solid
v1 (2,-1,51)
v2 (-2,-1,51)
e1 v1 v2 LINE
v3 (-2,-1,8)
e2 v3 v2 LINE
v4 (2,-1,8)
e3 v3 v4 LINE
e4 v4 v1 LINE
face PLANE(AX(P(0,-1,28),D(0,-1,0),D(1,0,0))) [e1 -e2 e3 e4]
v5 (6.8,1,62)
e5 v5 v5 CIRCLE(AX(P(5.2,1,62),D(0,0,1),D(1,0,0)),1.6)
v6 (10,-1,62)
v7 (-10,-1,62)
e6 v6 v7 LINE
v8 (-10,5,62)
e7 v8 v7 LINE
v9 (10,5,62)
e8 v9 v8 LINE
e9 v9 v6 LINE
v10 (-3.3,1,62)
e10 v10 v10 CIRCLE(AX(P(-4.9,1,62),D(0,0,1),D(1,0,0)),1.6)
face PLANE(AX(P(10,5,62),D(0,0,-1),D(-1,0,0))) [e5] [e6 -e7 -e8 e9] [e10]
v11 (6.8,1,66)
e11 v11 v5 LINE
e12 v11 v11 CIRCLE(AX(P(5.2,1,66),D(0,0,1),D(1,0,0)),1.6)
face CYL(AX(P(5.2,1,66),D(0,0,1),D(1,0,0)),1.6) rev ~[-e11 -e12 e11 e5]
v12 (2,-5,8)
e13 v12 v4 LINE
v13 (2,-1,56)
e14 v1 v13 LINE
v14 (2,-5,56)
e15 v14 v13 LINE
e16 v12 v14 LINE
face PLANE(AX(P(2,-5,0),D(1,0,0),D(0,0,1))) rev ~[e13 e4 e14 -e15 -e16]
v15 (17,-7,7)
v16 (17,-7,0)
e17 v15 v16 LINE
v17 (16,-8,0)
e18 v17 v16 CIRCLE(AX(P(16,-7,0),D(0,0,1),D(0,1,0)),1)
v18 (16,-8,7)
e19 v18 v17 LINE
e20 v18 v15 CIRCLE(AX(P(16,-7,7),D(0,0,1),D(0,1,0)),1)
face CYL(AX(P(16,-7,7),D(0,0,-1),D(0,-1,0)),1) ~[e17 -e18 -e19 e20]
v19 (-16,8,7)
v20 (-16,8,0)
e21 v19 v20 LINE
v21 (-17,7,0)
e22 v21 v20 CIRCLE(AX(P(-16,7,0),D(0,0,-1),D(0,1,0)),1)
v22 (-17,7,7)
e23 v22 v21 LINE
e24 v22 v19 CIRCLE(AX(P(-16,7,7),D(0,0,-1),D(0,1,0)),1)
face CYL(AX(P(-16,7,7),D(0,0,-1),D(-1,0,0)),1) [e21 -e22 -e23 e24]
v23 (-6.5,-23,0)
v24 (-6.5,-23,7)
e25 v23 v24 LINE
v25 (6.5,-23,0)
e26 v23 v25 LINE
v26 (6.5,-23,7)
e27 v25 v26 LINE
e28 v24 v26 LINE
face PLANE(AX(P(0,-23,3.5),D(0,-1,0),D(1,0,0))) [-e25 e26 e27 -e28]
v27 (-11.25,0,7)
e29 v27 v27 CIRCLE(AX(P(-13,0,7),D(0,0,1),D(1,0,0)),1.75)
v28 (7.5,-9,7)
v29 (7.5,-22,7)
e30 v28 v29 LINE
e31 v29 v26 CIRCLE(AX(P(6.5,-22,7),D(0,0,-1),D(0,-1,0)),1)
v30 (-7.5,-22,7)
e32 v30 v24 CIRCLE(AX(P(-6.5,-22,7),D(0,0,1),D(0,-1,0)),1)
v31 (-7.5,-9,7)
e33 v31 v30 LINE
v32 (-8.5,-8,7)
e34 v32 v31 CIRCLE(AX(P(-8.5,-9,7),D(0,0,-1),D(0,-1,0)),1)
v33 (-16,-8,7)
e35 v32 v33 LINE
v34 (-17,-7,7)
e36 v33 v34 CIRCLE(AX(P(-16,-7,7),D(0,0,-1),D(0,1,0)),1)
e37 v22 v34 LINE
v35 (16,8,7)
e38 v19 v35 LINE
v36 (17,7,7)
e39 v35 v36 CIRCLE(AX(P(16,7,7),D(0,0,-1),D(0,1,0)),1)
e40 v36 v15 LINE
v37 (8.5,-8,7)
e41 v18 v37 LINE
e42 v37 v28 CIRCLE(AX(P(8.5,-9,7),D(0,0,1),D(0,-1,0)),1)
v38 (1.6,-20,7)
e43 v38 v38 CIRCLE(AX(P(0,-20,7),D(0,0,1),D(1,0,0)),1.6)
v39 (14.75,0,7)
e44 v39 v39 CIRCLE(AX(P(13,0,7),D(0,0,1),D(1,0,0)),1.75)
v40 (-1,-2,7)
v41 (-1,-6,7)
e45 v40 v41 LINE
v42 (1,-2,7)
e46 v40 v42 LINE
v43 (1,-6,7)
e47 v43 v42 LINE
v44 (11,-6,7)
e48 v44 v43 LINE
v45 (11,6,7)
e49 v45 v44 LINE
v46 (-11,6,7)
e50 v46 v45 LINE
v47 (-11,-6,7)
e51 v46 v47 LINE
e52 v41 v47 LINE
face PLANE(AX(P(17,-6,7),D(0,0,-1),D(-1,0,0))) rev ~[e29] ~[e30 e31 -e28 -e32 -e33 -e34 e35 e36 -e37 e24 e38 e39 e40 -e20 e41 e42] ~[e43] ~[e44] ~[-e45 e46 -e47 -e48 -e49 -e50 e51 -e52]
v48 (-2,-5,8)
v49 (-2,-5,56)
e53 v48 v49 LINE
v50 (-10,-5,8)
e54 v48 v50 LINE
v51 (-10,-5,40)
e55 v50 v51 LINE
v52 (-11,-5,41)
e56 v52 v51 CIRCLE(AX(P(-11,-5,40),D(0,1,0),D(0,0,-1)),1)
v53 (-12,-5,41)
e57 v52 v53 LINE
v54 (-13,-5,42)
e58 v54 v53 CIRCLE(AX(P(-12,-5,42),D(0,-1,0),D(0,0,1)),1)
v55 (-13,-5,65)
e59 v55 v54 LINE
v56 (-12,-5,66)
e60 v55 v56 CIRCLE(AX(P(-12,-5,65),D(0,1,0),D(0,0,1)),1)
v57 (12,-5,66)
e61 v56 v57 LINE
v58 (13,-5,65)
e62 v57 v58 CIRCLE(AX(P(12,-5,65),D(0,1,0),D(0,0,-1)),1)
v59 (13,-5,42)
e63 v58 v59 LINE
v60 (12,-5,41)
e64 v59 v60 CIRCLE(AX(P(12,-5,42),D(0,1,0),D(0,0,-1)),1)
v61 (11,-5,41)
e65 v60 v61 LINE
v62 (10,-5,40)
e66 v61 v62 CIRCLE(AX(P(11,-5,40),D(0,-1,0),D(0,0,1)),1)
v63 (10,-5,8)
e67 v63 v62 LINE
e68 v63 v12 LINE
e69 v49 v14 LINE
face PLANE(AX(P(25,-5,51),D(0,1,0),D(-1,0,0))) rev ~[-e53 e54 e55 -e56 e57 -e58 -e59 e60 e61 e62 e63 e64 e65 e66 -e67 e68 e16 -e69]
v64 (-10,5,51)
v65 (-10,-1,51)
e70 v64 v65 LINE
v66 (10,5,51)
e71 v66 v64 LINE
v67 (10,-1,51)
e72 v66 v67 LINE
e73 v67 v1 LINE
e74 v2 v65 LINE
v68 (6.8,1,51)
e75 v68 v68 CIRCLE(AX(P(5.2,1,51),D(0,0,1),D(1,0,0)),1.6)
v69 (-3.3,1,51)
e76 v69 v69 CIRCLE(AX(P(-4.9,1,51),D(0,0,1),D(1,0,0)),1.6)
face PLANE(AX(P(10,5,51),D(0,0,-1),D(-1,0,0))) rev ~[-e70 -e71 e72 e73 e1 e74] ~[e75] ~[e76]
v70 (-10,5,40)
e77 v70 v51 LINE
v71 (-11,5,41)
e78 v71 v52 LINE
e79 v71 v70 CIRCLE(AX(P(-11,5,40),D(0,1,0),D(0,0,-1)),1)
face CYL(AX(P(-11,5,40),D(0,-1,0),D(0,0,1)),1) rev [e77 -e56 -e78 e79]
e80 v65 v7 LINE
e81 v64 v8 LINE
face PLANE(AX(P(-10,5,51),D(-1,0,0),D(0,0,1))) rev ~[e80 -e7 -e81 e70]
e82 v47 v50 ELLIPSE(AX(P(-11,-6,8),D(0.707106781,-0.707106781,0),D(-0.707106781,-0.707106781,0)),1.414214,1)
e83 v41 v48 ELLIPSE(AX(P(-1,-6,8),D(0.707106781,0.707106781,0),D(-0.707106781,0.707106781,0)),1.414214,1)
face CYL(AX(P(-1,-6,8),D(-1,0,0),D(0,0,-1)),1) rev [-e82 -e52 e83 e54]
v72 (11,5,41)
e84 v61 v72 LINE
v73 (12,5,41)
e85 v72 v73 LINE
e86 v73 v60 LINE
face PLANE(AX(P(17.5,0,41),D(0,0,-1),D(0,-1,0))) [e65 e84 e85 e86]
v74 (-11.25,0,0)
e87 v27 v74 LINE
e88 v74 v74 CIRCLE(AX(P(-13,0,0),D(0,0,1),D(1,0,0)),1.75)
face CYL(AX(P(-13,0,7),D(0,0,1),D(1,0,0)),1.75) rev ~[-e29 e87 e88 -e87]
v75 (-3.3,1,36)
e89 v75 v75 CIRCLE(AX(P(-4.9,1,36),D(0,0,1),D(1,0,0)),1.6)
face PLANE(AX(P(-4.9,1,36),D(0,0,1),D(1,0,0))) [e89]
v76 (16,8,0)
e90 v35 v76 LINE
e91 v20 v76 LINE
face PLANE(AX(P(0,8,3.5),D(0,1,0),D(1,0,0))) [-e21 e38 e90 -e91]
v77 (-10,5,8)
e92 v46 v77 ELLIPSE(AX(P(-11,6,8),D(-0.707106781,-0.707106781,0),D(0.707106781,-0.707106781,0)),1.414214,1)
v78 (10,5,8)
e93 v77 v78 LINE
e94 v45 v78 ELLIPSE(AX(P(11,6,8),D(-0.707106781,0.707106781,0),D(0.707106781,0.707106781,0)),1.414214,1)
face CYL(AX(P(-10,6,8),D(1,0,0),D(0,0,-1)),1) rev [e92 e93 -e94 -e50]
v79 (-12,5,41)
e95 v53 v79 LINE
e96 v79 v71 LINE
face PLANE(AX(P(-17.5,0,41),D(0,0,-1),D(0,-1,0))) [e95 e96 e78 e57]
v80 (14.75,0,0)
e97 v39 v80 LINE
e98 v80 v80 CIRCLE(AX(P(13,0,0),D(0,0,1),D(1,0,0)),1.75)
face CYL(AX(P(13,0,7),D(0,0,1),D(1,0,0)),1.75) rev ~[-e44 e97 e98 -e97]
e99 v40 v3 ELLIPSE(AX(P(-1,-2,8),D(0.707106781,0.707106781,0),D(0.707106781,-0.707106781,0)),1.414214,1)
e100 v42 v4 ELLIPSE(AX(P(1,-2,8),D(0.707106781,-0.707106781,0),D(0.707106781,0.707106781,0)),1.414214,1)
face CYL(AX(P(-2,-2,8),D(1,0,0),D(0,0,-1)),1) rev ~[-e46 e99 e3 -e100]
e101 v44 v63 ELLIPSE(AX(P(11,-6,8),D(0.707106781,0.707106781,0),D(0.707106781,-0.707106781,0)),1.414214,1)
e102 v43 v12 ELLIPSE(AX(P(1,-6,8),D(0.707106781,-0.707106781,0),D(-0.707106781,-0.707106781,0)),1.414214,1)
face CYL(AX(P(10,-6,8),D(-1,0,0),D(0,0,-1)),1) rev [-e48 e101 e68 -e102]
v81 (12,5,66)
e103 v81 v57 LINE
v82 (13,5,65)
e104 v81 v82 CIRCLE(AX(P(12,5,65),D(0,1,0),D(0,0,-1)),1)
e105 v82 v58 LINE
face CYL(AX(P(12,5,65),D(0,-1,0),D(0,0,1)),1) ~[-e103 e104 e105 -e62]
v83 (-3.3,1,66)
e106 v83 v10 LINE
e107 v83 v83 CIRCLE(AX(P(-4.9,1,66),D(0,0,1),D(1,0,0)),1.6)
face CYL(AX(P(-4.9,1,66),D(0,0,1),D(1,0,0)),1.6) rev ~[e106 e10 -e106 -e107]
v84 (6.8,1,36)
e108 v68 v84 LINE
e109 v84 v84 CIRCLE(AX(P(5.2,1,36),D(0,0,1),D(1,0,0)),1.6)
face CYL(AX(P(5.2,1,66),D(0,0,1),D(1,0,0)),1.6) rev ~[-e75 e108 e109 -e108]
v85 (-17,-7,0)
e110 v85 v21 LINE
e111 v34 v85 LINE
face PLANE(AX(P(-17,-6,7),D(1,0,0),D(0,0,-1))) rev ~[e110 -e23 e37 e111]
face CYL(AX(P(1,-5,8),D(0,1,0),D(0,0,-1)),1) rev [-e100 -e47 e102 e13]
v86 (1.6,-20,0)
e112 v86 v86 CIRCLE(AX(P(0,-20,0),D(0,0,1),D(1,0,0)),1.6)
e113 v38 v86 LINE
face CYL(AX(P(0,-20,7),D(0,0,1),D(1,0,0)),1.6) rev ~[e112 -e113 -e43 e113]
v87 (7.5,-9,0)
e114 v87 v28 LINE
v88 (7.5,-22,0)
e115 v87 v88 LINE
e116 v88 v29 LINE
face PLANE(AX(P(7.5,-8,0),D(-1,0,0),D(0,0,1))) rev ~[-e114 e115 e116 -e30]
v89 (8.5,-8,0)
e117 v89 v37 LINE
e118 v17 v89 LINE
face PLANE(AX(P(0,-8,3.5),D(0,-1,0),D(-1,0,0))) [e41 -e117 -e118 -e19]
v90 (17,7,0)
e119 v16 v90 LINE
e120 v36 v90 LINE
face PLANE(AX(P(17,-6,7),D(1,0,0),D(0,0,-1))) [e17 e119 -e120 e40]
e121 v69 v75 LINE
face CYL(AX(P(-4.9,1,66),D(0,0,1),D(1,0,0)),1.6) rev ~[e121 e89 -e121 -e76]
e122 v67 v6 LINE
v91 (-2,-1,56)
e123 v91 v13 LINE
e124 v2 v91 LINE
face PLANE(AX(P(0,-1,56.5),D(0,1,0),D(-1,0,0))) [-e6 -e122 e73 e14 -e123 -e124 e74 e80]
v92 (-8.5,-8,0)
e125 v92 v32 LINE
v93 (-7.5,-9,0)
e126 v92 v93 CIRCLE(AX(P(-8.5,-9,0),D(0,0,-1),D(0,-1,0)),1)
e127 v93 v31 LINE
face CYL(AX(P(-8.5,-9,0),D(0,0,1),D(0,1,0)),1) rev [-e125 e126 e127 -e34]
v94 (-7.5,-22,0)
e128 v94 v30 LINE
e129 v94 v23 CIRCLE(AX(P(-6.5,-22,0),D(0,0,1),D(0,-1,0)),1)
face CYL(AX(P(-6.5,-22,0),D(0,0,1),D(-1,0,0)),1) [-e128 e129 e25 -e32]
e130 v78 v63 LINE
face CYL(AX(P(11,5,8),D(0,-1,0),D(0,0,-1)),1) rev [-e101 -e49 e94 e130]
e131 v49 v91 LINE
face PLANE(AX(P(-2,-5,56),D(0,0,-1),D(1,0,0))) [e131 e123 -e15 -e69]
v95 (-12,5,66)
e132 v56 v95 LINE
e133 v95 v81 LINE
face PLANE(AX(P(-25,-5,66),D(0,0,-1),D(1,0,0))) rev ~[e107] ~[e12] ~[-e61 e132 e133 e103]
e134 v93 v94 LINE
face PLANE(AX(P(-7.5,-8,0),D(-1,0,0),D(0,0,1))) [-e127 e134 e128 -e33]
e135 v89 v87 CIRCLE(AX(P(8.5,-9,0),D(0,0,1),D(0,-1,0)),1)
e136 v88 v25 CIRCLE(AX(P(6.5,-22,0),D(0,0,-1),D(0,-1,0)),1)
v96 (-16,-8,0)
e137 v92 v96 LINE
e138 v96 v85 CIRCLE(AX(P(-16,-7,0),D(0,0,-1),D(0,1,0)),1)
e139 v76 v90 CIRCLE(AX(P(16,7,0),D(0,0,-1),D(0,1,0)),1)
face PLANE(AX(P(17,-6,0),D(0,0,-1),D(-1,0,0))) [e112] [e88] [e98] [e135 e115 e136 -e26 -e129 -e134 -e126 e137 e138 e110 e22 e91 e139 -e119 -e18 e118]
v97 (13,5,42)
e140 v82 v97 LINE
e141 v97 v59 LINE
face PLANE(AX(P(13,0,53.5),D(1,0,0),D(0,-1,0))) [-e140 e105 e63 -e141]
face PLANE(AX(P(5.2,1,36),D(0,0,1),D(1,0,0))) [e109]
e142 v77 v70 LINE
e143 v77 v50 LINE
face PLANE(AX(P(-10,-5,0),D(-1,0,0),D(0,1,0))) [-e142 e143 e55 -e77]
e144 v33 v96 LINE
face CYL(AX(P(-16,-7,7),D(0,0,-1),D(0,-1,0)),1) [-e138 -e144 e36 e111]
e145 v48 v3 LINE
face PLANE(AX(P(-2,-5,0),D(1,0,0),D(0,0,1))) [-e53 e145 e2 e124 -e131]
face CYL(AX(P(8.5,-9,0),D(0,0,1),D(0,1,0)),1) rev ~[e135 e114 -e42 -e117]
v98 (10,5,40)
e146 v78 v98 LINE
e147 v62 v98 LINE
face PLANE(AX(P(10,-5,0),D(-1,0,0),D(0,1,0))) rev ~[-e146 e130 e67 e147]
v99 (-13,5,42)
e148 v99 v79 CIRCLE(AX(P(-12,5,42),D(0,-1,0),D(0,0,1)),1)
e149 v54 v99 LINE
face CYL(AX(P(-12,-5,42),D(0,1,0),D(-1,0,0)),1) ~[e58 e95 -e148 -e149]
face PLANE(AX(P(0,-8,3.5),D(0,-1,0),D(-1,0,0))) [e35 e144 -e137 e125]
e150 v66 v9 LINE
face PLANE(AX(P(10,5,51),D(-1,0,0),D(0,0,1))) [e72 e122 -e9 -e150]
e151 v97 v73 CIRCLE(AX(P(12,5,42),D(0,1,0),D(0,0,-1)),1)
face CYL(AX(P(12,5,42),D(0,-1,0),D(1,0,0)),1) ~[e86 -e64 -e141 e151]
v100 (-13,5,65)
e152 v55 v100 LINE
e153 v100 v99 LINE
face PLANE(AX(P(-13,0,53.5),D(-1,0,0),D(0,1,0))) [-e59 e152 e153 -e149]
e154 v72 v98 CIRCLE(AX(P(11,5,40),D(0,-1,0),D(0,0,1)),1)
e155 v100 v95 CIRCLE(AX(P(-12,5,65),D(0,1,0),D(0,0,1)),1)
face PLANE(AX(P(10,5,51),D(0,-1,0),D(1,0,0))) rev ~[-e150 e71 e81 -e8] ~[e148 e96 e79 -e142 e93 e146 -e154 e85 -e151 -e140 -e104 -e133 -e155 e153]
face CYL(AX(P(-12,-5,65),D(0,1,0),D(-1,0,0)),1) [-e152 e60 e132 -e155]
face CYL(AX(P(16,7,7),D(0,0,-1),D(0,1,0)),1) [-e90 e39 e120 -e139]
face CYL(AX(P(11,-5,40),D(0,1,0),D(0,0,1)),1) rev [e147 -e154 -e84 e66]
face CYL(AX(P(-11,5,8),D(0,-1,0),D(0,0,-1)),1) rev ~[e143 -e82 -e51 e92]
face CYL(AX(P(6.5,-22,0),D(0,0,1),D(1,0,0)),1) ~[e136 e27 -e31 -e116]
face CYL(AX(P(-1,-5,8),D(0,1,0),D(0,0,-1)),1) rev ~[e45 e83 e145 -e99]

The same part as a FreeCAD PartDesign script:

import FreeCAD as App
import Part
import Sketcher

V = App.Vector
Q = App.Units.Quantity


def edges_at(feature, points):
    """Names of the edges that pass closest to the given points."""
    edges = feature.Shape.Edges
    near = lambda p: min(range(len(edges)), key=lambda i: edges[i].distToShape(Part.Vertex(*p))[0])
    return sorted({f"Edge{near(p) + 1}" for p in points})

doc = App.newDocument("Part")
body = doc.addObject("PartDesign::Body", "Body")

# Sketch on XY plane
sketch1 = doc.addObject("Sketcher::SketchObject", "Sketch")
body.addObject(sketch1)
sketch1.AttachmentSupport = (doc.XY_Plane, [""])
sketch1.MapMode = "FlatFace"
sketch1.addGeometry(Part.LineSegment(V(-10, 5, 0), V(-10, -5, 0)), False)
sketch1.addGeometry(Part.LineSegment(V(-10, -5, 0), V(10, -5, 0)), False)
sketch1.addGeometry(Part.LineSegment(V(10, -5, 0), V(10, 5, 0)), False)
sketch1.addGeometry(Part.LineSegment(V(10, 5, 0), V(-10, 5, 0)), False)
sketch1.addConstraint(Sketcher.Constraint("Coincident", 0, 2, 1, 1))
sketch1.addConstraint(Sketcher.Constraint("Coincident", 1, 2, 2, 1))
sketch1.addConstraint(Sketcher.Constraint("Coincident", 2, 2, 3, 1))
sketch1.addConstraint(Sketcher.Constraint("Coincident", 3, 2, 0, 1))
sketch1.addConstraint(Sketcher.Constraint("Vertical", 0))
sketch1.addConstraint(Sketcher.Constraint("Horizontal", 1))
sketch1.addConstraint(Sketcher.Constraint("Vertical", 2))
sketch1.addConstraint(Sketcher.Constraint("Horizontal", 3))
sketch1.addConstraint(Sketcher.Constraint("Symmetric", 0, 2, 2, 2, -1, 1))
sketch1.addConstraint(Sketcher.Constraint("DistanceX", 1, 1, 1, 2, Q("20 mm")))
sketch1.addConstraint(Sketcher.Constraint("DistanceY", 0, 2, 0, 1, Q("10 mm")))
pad1 = doc.addObject("PartDesign::Pad", "Pad")
body.addObject(pad1)
pad1.Profile = sketch1
pad1.Length = 60

# Sketch on XZ plane
sketch2 = doc.addObject("Sketcher::SketchObject", "Sketch001")
body.addObject(sketch2)
sketch2.AttachmentSupport = (doc.XZ_Plane, [""])
sketch2.MapMode = "FlatFace"
sketch2.AttachmentOffset = App.Placement(V(0, 0, 5), App.Rotation())
sketch2.addGeometry(Part.LineSegment(V(-25, 66, 0), V(-25, 56, 0)), False)
sketch2.addGeometry(Part.LineSegment(V(-25, 56, 0), V(25, 56, 0)), False)
sketch2.addGeometry(Part.LineSegment(V(25, 56, 0), V(25, 66, 0)), False)
sketch2.addGeometry(Part.LineSegment(V(25, 66, 0), V(-25, 66, 0)), False)
sketch2.addConstraint(Sketcher.Constraint("Coincident", 0, 2, 1, 1))
sketch2.addConstraint(Sketcher.Constraint("Coincident", 1, 2, 2, 1))
sketch2.addConstraint(Sketcher.Constraint("Coincident", 2, 2, 3, 1))
sketch2.addConstraint(Sketcher.Constraint("Coincident", 3, 2, 0, 1))
sketch2.addConstraint(Sketcher.Constraint("Vertical", 0))
sketch2.addConstraint(Sketcher.Constraint("Horizontal", 1))
sketch2.addConstraint(Sketcher.Constraint("Vertical", 2))
sketch2.addConstraint(Sketcher.Constraint("Horizontal", 3))
sketch2.addConstraint(Sketcher.Constraint("DistanceX", 1, 1, 1, 2, Q("50 mm")))
sketch2.addConstraint(Sketcher.Constraint("DistanceY", 0, 2, 0, 1, Q("10 mm")))
sketch2.addConstraint(Sketcher.Constraint("DistanceX", 0, 2, -1, 1, Q("25 mm")))
sketch2.addConstraint(Sketcher.Constraint("DistanceY", -1, 1, 0, 2, Q("56 mm")))
pad2 = doc.addObject("PartDesign::Pad", "Pad001")
body.addObject(pad2)
pad2.Profile = sketch2
pad2.Length = 10
pad2.Reversed = True

# Sketch on XY plane
sketch3 = doc.addObject("Sketcher::SketchObject", "Sketch002")
body.addObject(sketch3)
sketch3.AttachmentSupport = (doc.XY_Plane, [""])
sketch3.MapMode = "FlatFace"
sketch3.AttachmentOffset = App.Placement(V(0, 0, 56), App.Rotation())
sketch3.addGeometry(Part.LineSegment(V(10, 5, 0), V(25, 5, 0)), False)
sketch3.addGeometry(Part.LineSegment(V(25, 5, 0), V(25, -5, 0)), False)
sketch3.addGeometry(Part.LineSegment(V(25, -5, 0), V(10, -5, 0)), False)
sketch3.addGeometry(Part.LineSegment(V(10, -5, 0), V(10, 5, 0)), False)
sketch3.addConstraint(Sketcher.Constraint("Coincident", 0, 2, 1, 1))
sketch3.addConstraint(Sketcher.Constraint("Coincident", 1, 2, 2, 1))
sketch3.addConstraint(Sketcher.Constraint("Coincident", 2, 2, 3, 1))
sketch3.addConstraint(Sketcher.Constraint("Coincident", 3, 2, 0, 1))
sketch3.addConstraint(Sketcher.Constraint("Horizontal", 0))
sketch3.addConstraint(Sketcher.Constraint("Vertical", 1))
sketch3.addConstraint(Sketcher.Constraint("Horizontal", 2))
sketch3.addConstraint(Sketcher.Constraint("Vertical", 3))
sketch3.addConstraint(Sketcher.Constraint("DistanceX", 0, 1, 0, 2, Q("15 mm")))
sketch3.addConstraint(Sketcher.Constraint("DistanceY", 1, 2, 1, 1, Q("10 mm")))
sketch3.addConstraint(Sketcher.Constraint("DistanceX", -1, 1, 0, 2, Q("25 mm")))
sketch3.addConstraint(Sketcher.Constraint("DistanceY", -1, 1, 0, 2, Q("5 mm")))
pad3 = doc.addObject("PartDesign::Pad", "Pad002")
body.addObject(pad3)
pad3.Profile = sketch3
pad3.Length = 5
pad3.Reversed = True

# Sketch on XY plane
sketch4 = doc.addObject("Sketcher::SketchObject", "Sketch003")
body.addObject(sketch4)
sketch4.AttachmentSupport = (doc.XY_Plane, [""])
sketch4.MapMode = "FlatFace"
sketch4.AttachmentOffset = App.Placement(V(0, 0, 56), App.Rotation())
sketch4.addGeometry(Part.LineSegment(V(-25, 5, 0), V(-10, 5, 0)), False)
sketch4.addGeometry(Part.LineSegment(V(-10, 5, 0), V(-10, -5, 0)), False)
sketch4.addGeometry(Part.LineSegment(V(-10, -5, 0), V(-25, -5, 0)), False)
sketch4.addGeometry(Part.LineSegment(V(-25, -5, 0), V(-25, 5, 0)), False)
sketch4.addConstraint(Sketcher.Constraint("Coincident", 0, 2, 1, 1))
sketch4.addConstraint(Sketcher.Constraint("Coincident", 1, 2, 2, 1))
sketch4.addConstraint(Sketcher.Constraint("Coincident", 2, 2, 3, 1))
sketch4.addConstraint(Sketcher.Constraint("Coincident", 3, 2, 0, 1))
sketch4.addConstraint(Sketcher.Constraint("Horizontal", 0))
sketch4.addConstraint(Sketcher.Constraint("Vertical", 1))
sketch4.addConstraint(Sketcher.Constraint("Horizontal", 2))
sketch4.addConstraint(Sketcher.Constraint("Vertical", 3))
sketch4.addConstraint(Sketcher.Constraint("DistanceX", 0, 1, 0, 2, Q("15 mm")))
sketch4.addConstraint(Sketcher.Constraint("DistanceY", 1, 2, 1, 1, Q("10 mm")))
sketch4.addConstraint(Sketcher.Constraint("DistanceX", 0, 2, -1, 1, Q("10 mm")))
sketch4.addConstraint(Sketcher.Constraint("DistanceY", -1, 1, 0, 2, Q("5 mm")))
pad4 = doc.addObject("PartDesign::Pad", "Pad003")
body.addObject(pad4)
pad4.Profile = sketch4
pad4.Length = 5
pad4.Reversed = True

# Sketch on XZ plane
sketch5 = doc.addObject("Sketcher::SketchObject", "Sketch004")
body.addObject(sketch5)
sketch5.AttachmentSupport = (doc.XZ_Plane, [""])
sketch5.MapMode = "FlatFace"
sketch5.AttachmentOffset = App.Placement(V(0, 0, -5), App.Rotation())
sketch5.addGeometry(Part.LineSegment(V(10, 62, 0), V(10, 51, 0)), False)
sketch5.addGeometry(Part.LineSegment(V(10, 51, 0), V(-10, 51, 0)), False)
sketch5.addGeometry(Part.LineSegment(V(-10, 51, 0), V(-10, 62, 0)), False)
sketch5.addGeometry(Part.LineSegment(V(-10, 62, 0), V(10, 62, 0)), False)
sketch5.addConstraint(Sketcher.Constraint("Coincident", 0, 2, 1, 1))
sketch5.addConstraint(Sketcher.Constraint("Coincident", 1, 2, 2, 1))
sketch5.addConstraint(Sketcher.Constraint("Coincident", 2, 2, 3, 1))
sketch5.addConstraint(Sketcher.Constraint("Coincident", 3, 2, 0, 1))
sketch5.addConstraint(Sketcher.Constraint("Vertical", 0))
sketch5.addConstraint(Sketcher.Constraint("Horizontal", 1))
sketch5.addConstraint(Sketcher.Constraint("Vertical", 2))
sketch5.addConstraint(Sketcher.Constraint("Horizontal", 3))
sketch5.addConstraint(Sketcher.Constraint("DistanceX", 1, 2, 1, 1, Q("20 mm")))
sketch5.addConstraint(Sketcher.Constraint("DistanceY", 0, 2, 0, 1, Q("11 mm")))
sketch5.addConstraint(Sketcher.Constraint("DistanceX", -1, 1, 0, 2, Q("10 mm")))
sketch5.addConstraint(Sketcher.Constraint("DistanceY", -1, 1, 0, 2, Q("51 mm")))
pocket1 = doc.addObject("PartDesign::Pocket", "Pocket")
body.addObject(pocket1)
pocket1.Profile = sketch5
pocket1.Length = 6
pocket1.Reversed = True

# Sketch on XY plane
sketch6 = doc.addObject("Sketcher::SketchObject", "Sketch005")
body.addObject(sketch6)
sketch6.AttachmentSupport = (doc.XY_Plane, [""])
sketch6.MapMode = "FlatFace"
sketch6.AttachmentOffset = App.Placement(V(0, 0, 51), App.Rotation())
sketch6.addGeometry(Part.LineSegment(V(-10, -5, 0), V(-25, -5, 0)), False)
sketch6.addGeometry(Part.LineSegment(V(-25, -5, 0), V(-25, 5, 0)), False)
sketch6.addGeometry(Part.LineSegment(V(-25, 5, 0), V(-10, 5, 0)), False)
sketch6.addGeometry(Part.LineSegment(V(-10, 5, 0), V(-10, -5, 0)), False)
sketch6.addConstraint(Sketcher.Constraint("Coincident", 0, 2, 1, 1))
sketch6.addConstraint(Sketcher.Constraint("Coincident", 1, 2, 2, 1))
sketch6.addConstraint(Sketcher.Constraint("Coincident", 2, 2, 3, 1))
sketch6.addConstraint(Sketcher.Constraint("Coincident", 3, 2, 0, 1))
sketch6.addConstraint(Sketcher.Constraint("Horizontal", 0))
sketch6.addConstraint(Sketcher.Constraint("Vertical", 1))
sketch6.addConstraint(Sketcher.Constraint("Horizontal", 2))
sketch6.addConstraint(Sketcher.Constraint("Vertical", 3))
sketch6.addConstraint(Sketcher.Constraint("DistanceX", 0, 2, 0, 1, Q("15 mm")))
sketch6.addConstraint(Sketcher.Constraint("DistanceY", 1, 1, 1, 2, Q("10 mm")))
sketch6.addConstraint(Sketcher.Constraint("DistanceX", 0, 2, -1, 1, Q("25 mm")))
sketch6.addConstraint(Sketcher.Constraint("DistanceY", 0, 2, -1, 1, Q("5 mm")))
pad5 = doc.addObject("PartDesign::Pad", "Pad004")
body.addObject(pad5)
pad5.Profile = sketch6
pad5.Length = 10
pad5.Reversed = True

# Sketch on XY plane
sketch7 = doc.addObject("Sketcher::SketchObject", "Sketch006")
body.addObject(sketch7)
sketch7.AttachmentSupport = (doc.XY_Plane, [""])
sketch7.MapMode = "FlatFace"
sketch7.AttachmentOffset = App.Placement(V(0, 0, 51), App.Rotation())
sketch7.addGeometry(Part.LineSegment(V(25, -5, 0), V(10, -5, 0)), False)
sketch7.addGeometry(Part.LineSegment(V(10, -5, 0), V(10, 5, 0)), False)
sketch7.addGeometry(Part.LineSegment(V(10, 5, 0), V(25, 5, 0)), False)
sketch7.addGeometry(Part.LineSegment(V(25, 5, 0), V(25, -5, 0)), False)
sketch7.addConstraint(Sketcher.Constraint("Coincident", 0, 2, 1, 1))
sketch7.addConstraint(Sketcher.Constraint("Coincident", 1, 2, 2, 1))
sketch7.addConstraint(Sketcher.Constraint("Coincident", 2, 2, 3, 1))
sketch7.addConstraint(Sketcher.Constraint("Coincident", 3, 2, 0, 1))
sketch7.addConstraint(Sketcher.Constraint("Horizontal", 0))
sketch7.addConstraint(Sketcher.Constraint("Vertical", 1))
sketch7.addConstraint(Sketcher.Constraint("Horizontal", 2))
sketch7.addConstraint(Sketcher.Constraint("Vertical", 3))
sketch7.addConstraint(Sketcher.Constraint("DistanceX", 0, 2, 0, 1, Q("15 mm")))
sketch7.addConstraint(Sketcher.Constraint("DistanceY", 1, 1, 1, 2, Q("10 mm")))
sketch7.addConstraint(Sketcher.Constraint("DistanceX", -1, 1, 0, 2, Q("10 mm")))
sketch7.addConstraint(Sketcher.Constraint("DistanceY", 0, 2, -1, 1, Q("5 mm")))
pad6 = doc.addObject("PartDesign::Pad", "Pad005")
body.addObject(pad6)
pad6.Profile = sketch7
pad6.Length = 10
pad6.Reversed = True

# Sketch on YZ plane
sketch8 = doc.addObject("Sketcher::SketchObject", "Sketch007")
body.addObject(sketch8)
sketch8.AttachmentSupport = (doc.YZ_Plane, [""])
sketch8.MapMode = "FlatFace"
sketch8.AttachmentOffset = App.Placement(V(0, 0, 25), App.Rotation())
sketch8.addGeometry(Part.LineSegment(V(5, 41, 0), V(5, 66, 0)), False)
sketch8.addGeometry(Part.LineSegment(V(5, 66, 0), V(-5, 66, 0)), False)
sketch8.addGeometry(Part.LineSegment(V(-5, 66, 0), V(-5, 41, 0)), False)
sketch8.addGeometry(Part.LineSegment(V(-5, 41, 0), V(5, 41, 0)), False)
sketch8.addConstraint(Sketcher.Constraint("Coincident", 0, 2, 1, 1))
sketch8.addConstraint(Sketcher.Constraint("Coincident", 1, 2, 2, 1))
sketch8.addConstraint(Sketcher.Constraint("Coincident", 2, 2, 3, 1))
sketch8.addConstraint(Sketcher.Constraint("Coincident", 3, 2, 0, 1))
sketch8.addConstraint(Sketcher.Constraint("Vertical", 0))
sketch8.addConstraint(Sketcher.Constraint("Horizontal", 1))
sketch8.addConstraint(Sketcher.Constraint("Vertical", 2))
sketch8.addConstraint(Sketcher.Constraint("Horizontal", 3))
sketch8.addConstraint(Sketcher.Constraint("DistanceX", 1, 2, 1, 1, Q("10 mm")))
sketch8.addConstraint(Sketcher.Constraint("DistanceY", 0, 1, 0, 2, Q("25 mm")))
sketch8.addConstraint(Sketcher.Constraint("DistanceX", -1, 1, 0, 2, Q("5 mm")))
sketch8.addConstraint(Sketcher.Constraint("DistanceY", -1, 1, 0, 2, Q("66 mm")))
pocket2 = doc.addObject("PartDesign::Pocket", "Pocket001")
body.addObject(pocket2)
pocket2.Profile = sketch8
pocket2.Length = 12

# Sketch on YZ plane
sketch9 = doc.addObject("Sketcher::SketchObject", "Sketch008")
body.addObject(sketch9)
sketch9.AttachmentSupport = (doc.YZ_Plane, [""])
sketch9.MapMode = "FlatFace"
sketch9.AttachmentOffset = App.Placement(V(0, 0, -25), App.Rotation())
sketch9.addGeometry(Part.LineSegment(V(-5, 41, 0), V(-5, 66, 0)), False)
sketch9.addGeometry(Part.LineSegment(V(-5, 66, 0), V(5, 66, 0)), False)
sketch9.addGeometry(Part.LineSegment(V(5, 66, 0), V(5, 41, 0)), False)
sketch9.addGeometry(Part.LineSegment(V(5, 41, 0), V(-5, 41, 0)), False)
sketch9.addConstraint(Sketcher.Constraint("Coincident", 0, 2, 1, 1))
sketch9.addConstraint(Sketcher.Constraint("Coincident", 1, 2, 2, 1))
sketch9.addConstraint(Sketcher.Constraint("Coincident", 2, 2, 3, 1))
sketch9.addConstraint(Sketcher.Constraint("Coincident", 3, 2, 0, 1))
sketch9.addConstraint(Sketcher.Constraint("Vertical", 0))
sketch9.addConstraint(Sketcher.Constraint("Horizontal", 1))
sketch9.addConstraint(Sketcher.Constraint("Vertical", 2))
sketch9.addConstraint(Sketcher.Constraint("Horizontal", 3))
sketch9.addConstraint(Sketcher.Constraint("DistanceX", 1, 1, 1, 2, Q("10 mm")))
sketch9.addConstraint(Sketcher.Constraint("DistanceY", 0, 1, 0, 2, Q("25 mm")))
sketch9.addConstraint(Sketcher.Constraint("DistanceX", 0, 2, -1, 1, Q("5 mm")))
sketch9.addConstraint(Sketcher.Constraint("DistanceY", -1, 1, 0, 2, Q("66 mm")))
pocket3 = doc.addObject("PartDesign::Pocket", "Pocket002")
body.addObject(pocket3)
pocket3.Profile = sketch9
pocket3.Length = 12
pocket3.Reversed = True

# Sketch on XZ plane
sketch10 = doc.addObject("Sketcher::SketchObject", "Sketch009")
body.addObject(sketch10)
sketch10.AttachmentSupport = (doc.XZ_Plane, [""])
sketch10.MapMode = "FlatFace"
sketch10.AttachmentOffset = App.Placement(V(0, 0, 5), App.Rotation())
sketch10.addGeometry(Part.LineSegment(V(-2, 56, 0), V(-2, 0, 0)), False)
sketch10.addGeometry(Part.LineSegment(V(-2, 0, 0), V(2, 0, 0)), False)
sketch10.addGeometry(Part.LineSegment(V(2, 0, 0), V(2, 56, 0)), False)
sketch10.addGeometry(Part.LineSegment(V(2, 56, 0), V(-2, 56, 0)), False)
sketch10.addConstraint(Sketcher.Constraint("Coincident", 0, 2, 1, 1))
sketch10.addConstraint(Sketcher.Constraint("Coincident", 1, 2, 2, 1))
sketch10.addConstraint(Sketcher.Constraint("Coincident", 2, 2, 3, 1))
sketch10.addConstraint(Sketcher.Constraint("Coincident", 3, 2, 0, 1))
sketch10.addConstraint(Sketcher.Constraint("Vertical", 0))
sketch10.addConstraint(Sketcher.Constraint("Horizontal", 1))
sketch10.addConstraint(Sketcher.Constraint("Vertical", 2))
sketch10.addConstraint(Sketcher.Constraint("Horizontal", 3))
sketch10.addConstraint(Sketcher.Constraint("Symmetric", 0, 2, 1, 2, -1, 1))
sketch10.addConstraint(Sketcher.Constraint("DistanceX", 1, 1, 1, 2, Q("4 mm")))
sketch10.addConstraint(Sketcher.Constraint("DistanceY", 0, 2, 0, 1, Q("56 mm")))
pocket4 = doc.addObject("PartDesign::Pocket", "Pocket003")
body.addObject(pocket4)
pocket4.Profile = sketch10
pocket4.Length = 4

# Sketch on XY plane
sketch11 = doc.addObject("Sketcher::SketchObject", "Sketch010")
body.addObject(sketch11)
sketch11.AttachmentSupport = (doc.XY_Plane, [""])
sketch11.MapMode = "FlatFace"
sketch11.AttachmentOffset = App.Placement(V(0, 0, 66), App.Rotation())
sketch11.addGeometry(Part.Circle(V(-4.9, 1, 0), V(0, 0, 1), 1.6), False)
sketch11.addGeometry(Part.Circle(V(5.2, 1, 0), V(0, 0, 1), 1.6), False)
sketch11.addConstraint(Sketcher.Constraint("Equal", 0, 1))
sketch11.addConstraint(Sketcher.Constraint("Horizontal", 0, 3, 1, 3))
sketch11.addConstraint(Sketcher.Constraint("Diameter", 0, Q("3.2 mm")))
sketch11.addConstraint(Sketcher.Constraint("DistanceY", -1, 1, 0, 3, Q("1 mm")))
sketch11.addConstraint(Sketcher.Constraint("DistanceX", 0, 3, -1, 1, Q("4.9 mm")))
sketch11.addConstraint(Sketcher.Constraint("DistanceX", -1, 1, 1, 3, Q("5.2 mm")))
pocket5 = doc.addObject("PartDesign::Pocket", "Pocket004")
body.addObject(pocket5)
pocket5.Profile = sketch11
pocket5.Length = 30

# Sketch on XY plane
sketch12 = doc.addObject("Sketcher::SketchObject", "Sketch011")
body.addObject(sketch12)
sketch12.AttachmentSupport = (doc.XY_Plane, [""])
sketch12.MapMode = "FlatFace"
sketch12.addGeometry(Part.LineSegment(V(-15, -6, 0), V(-15, 6, 0)), False)
sketch12.addGeometry(Part.LineSegment(V(-15, 6, 0), V(15, 6, 0)), False)
sketch12.addGeometry(Part.LineSegment(V(15, 6, 0), V(15, -6, 0)), False)
sketch12.addGeometry(Part.LineSegment(V(15, -6, 0), V(-15, -6, 0)), False)
sketch12.addConstraint(Sketcher.Constraint("Coincident", 0, 2, 1, 1))
sketch12.addConstraint(Sketcher.Constraint("Coincident", 1, 2, 2, 1))
sketch12.addConstraint(Sketcher.Constraint("Coincident", 2, 2, 3, 1))
sketch12.addConstraint(Sketcher.Constraint("Coincident", 3, 2, 0, 1))
sketch12.addConstraint(Sketcher.Constraint("Vertical", 0))
sketch12.addConstraint(Sketcher.Constraint("Horizontal", 1))
sketch12.addConstraint(Sketcher.Constraint("Vertical", 2))
sketch12.addConstraint(Sketcher.Constraint("Horizontal", 3))
sketch12.addConstraint(Sketcher.Constraint("Symmetric", 0, 2, 2, 2, -1, 1))
sketch12.addConstraint(Sketcher.Constraint("DistanceX", 1, 1, 1, 2, Q("30 mm")))
sketch12.addConstraint(Sketcher.Constraint("DistanceY", 0, 1, 0, 2, Q("12 mm")))
pad7 = doc.addObject("PartDesign::Pad", "Pad006")
body.addObject(pad7)
pad7.Profile = sketch12
pad7.Length = 7

# Sketch on XY plane
sketch13 = doc.addObject("Sketcher::SketchObject", "Sketch012")
body.addObject(sketch13)
sketch13.AttachmentSupport = (doc.XY_Plane, [""])
sketch13.MapMode = "FlatFace"
sketch13.AttachmentOffset = App.Placement(V(0, 0, 7), App.Rotation())
sketch13.addGeometry(Part.Circle(V(13, 0, 0), V(0, 0, 1), 1.75), False)
sketch13.addGeometry(Part.Circle(V(-13, 0, 0), V(0, 0, 1), 1.75), False)
sketch13.addConstraint(Sketcher.Constraint("Equal", 0, 1))
sketch13.addConstraint(Sketcher.Constraint("Symmetric", 0, 3, 1, 3, -1, 1))
sketch13.addConstraint(Sketcher.Constraint("PointOnObject", 0, 3, -1))
sketch13.addConstraint(Sketcher.Constraint("Diameter", 0, Q("3.5 mm")))
sketch13.addConstraint(Sketcher.Constraint("DistanceX", -1, 1, 0, 3, Q("13 mm")))
pocket6 = doc.addObject("PartDesign::Pocket", "Pocket005")
body.addObject(pocket6)
pocket6.Profile = sketch13
pocket6.Length = 9

# Sketch on YZ plane
sketch14 = doc.addObject("Sketcher::SketchObject", "Sketch013")
body.addObject(sketch14)
sketch14.AttachmentSupport = (doc.YZ_Plane, [""])
sketch14.MapMode = "FlatFace"
sketch14.AttachmentOffset = App.Placement(V(0, 0, 15), App.Rotation())
sketch14.addGeometry(Part.LineSegment(V(6, 0, 0), V(6, 7, 0)), False)
sketch14.addGeometry(Part.LineSegment(V(6, 7, 0), V(-6, 7, 0)), False)
sketch14.addGeometry(Part.LineSegment(V(-6, 7, 0), V(-6, 0, 0)), False)
sketch14.addGeometry(Part.LineSegment(V(-6, 0, 0), V(6, 0, 0)), False)
sketch14.addConstraint(Sketcher.Constraint("Coincident", 0, 2, 1, 1))
sketch14.addConstraint(Sketcher.Constraint("Coincident", 1, 2, 2, 1))
sketch14.addConstraint(Sketcher.Constraint("Coincident", 2, 2, 3, 1))
sketch14.addConstraint(Sketcher.Constraint("Coincident", 3, 2, 0, 1))
sketch14.addConstraint(Sketcher.Constraint("Vertical", 0))
sketch14.addConstraint(Sketcher.Constraint("Horizontal", 1))
sketch14.addConstraint(Sketcher.Constraint("Vertical", 2))
sketch14.addConstraint(Sketcher.Constraint("Horizontal", 3))
sketch14.addConstraint(Sketcher.Constraint("Symmetric", 2, 2, 3, 2, -1, 1))
sketch14.addConstraint(Sketcher.Constraint("DistanceX", 1, 2, 1, 1, Q("12 mm")))
sketch14.addConstraint(Sketcher.Constraint("DistanceY", 0, 1, 0, 2, Q("7 mm")))
pad8 = doc.addObject("PartDesign::Pad", "Pad007")
body.addObject(pad8)
pad8.Profile = sketch14
pad8.Length = 2

# Sketch on YZ plane
sketch15 = doc.addObject("Sketcher::SketchObject", "Sketch014")
body.addObject(sketch15)
sketch15.AttachmentSupport = (doc.YZ_Plane, [""])
sketch15.MapMode = "FlatFace"
sketch15.AttachmentOffset = App.Placement(V(0, 0, -15), App.Rotation())
sketch15.addGeometry(Part.LineSegment(V(-6, 0, 0), V(-6, 7, 0)), False)
sketch15.addGeometry(Part.LineSegment(V(-6, 7, 0), V(6, 7, 0)), False)
sketch15.addGeometry(Part.LineSegment(V(6, 7, 0), V(6, 0, 0)), False)
sketch15.addGeometry(Part.LineSegment(V(6, 0, 0), V(-6, 0, 0)), False)
sketch15.addConstraint(Sketcher.Constraint("Coincident", 0, 2, 1, 1))
sketch15.addConstraint(Sketcher.Constraint("Coincident", 1, 2, 2, 1))
sketch15.addConstraint(Sketcher.Constraint("Coincident", 2, 2, 3, 1))
sketch15.addConstraint(Sketcher.Constraint("Coincident", 3, 2, 0, 1))
sketch15.addConstraint(Sketcher.Constraint("Vertical", 0))
sketch15.addConstraint(Sketcher.Constraint("Horizontal", 1))
sketch15.addConstraint(Sketcher.Constraint("Vertical", 2))
sketch15.addConstraint(Sketcher.Constraint("Horizontal", 3))
sketch15.addConstraint(Sketcher.Constraint("Symmetric", 2, 2, 3, 2, -1, 1))
sketch15.addConstraint(Sketcher.Constraint("DistanceX", 1, 1, 1, 2, Q("12 mm")))
sketch15.addConstraint(Sketcher.Constraint("DistanceY", 0, 1, 0, 2, Q("7 mm")))
pad9 = doc.addObject("PartDesign::Pad", "Pad008")
body.addObject(pad9)
pad9.Profile = sketch15
pad9.Length = 2
pad9.Reversed = True
doc.recompute()

fillet = doc.addObject("PartDesign::Fillet", "Fillet")
body.addObject(fillet)
fillet.Base = (pad9, edges_at(pad9, [(0, -1, 7), (-2, -3, 7), (2, -3, 7)]))
fillet.Radius = 1

# Sketch on XZ plane
sketch16 = doc.addObject("Sketcher::SketchObject", "Sketch015")
body.addObject(sketch16)
sketch16.AttachmentSupport = (doc.XZ_Plane, [""])
sketch16.MapMode = "FlatFace"
sketch16.AttachmentOffset = App.Placement(V(0, 0, -6), App.Rotation())
sketch16.addGeometry(Part.LineSegment(V(-17, 0, 0), V(-17, 7, 0)), False)
sketch16.addGeometry(Part.LineSegment(V(-17, 7, 0), V(17, 7, 0)), False)
sketch16.addGeometry(Part.LineSegment(V(17, 7, 0), V(17, 0, 0)), False)
sketch16.addGeometry(Part.LineSegment(V(17, 0, 0), V(-17, 0, 0)), False)
sketch16.addConstraint(Sketcher.Constraint("Coincident", 0, 2, 1, 1))
sketch16.addConstraint(Sketcher.Constraint("Coincident", 1, 2, 2, 1))
sketch16.addConstraint(Sketcher.Constraint("Coincident", 2, 2, 3, 1))
sketch16.addConstraint(Sketcher.Constraint("Coincident", 3, 2, 0, 1))
sketch16.addConstraint(Sketcher.Constraint("Vertical", 0))
sketch16.addConstraint(Sketcher.Constraint("Horizontal", 1))
sketch16.addConstraint(Sketcher.Constraint("Vertical", 2))
sketch16.addConstraint(Sketcher.Constraint("Horizontal", 3))
sketch16.addConstraint(Sketcher.Constraint("Symmetric", 2, 2, 3, 2, -1, 1))
sketch16.addConstraint(Sketcher.Constraint("DistanceX", 1, 1, 1, 2, Q("34 mm")))
sketch16.addConstraint(Sketcher.Constraint("DistanceY", 0, 1, 0, 2, Q("7 mm")))
pad10 = doc.addObject("PartDesign::Pad", "Pad009")
body.addObject(pad10)
pad10.Profile = sketch16
pad10.Length = 2
pad10.Reversed = True

# Sketch on XZ plane
sketch17 = doc.addObject("Sketcher::SketchObject", "Sketch016")
body.addObject(sketch17)
sketch17.AttachmentSupport = (doc.XZ_Plane, [""])
sketch17.MapMode = "FlatFace"
sketch17.AttachmentOffset = App.Placement(V(0, 0, 6), App.Rotation())
sketch17.addGeometry(Part.LineSegment(V(17, 0, 0), V(17, 7, 0)), False)
sketch17.addGeometry(Part.LineSegment(V(17, 7, 0), V(-17, 7, 0)), False)
sketch17.addGeometry(Part.LineSegment(V(-17, 7, 0), V(-17, 0, 0)), False)
sketch17.addGeometry(Part.LineSegment(V(-17, 0, 0), V(17, 0, 0)), False)
sketch17.addConstraint(Sketcher.Constraint("Coincident", 0, 2, 1, 1))
sketch17.addConstraint(Sketcher.Constraint("Coincident", 1, 2, 2, 1))
sketch17.addConstraint(Sketcher.Constraint("Coincident", 2, 2, 3, 1))
sketch17.addConstraint(Sketcher.Constraint("Coincident", 3, 2, 0, 1))
sketch17.addConstraint(Sketcher.Constraint("Vertical", 0))
sketch17.addConstraint(Sketcher.Constraint("Horizontal", 1))
sketch17.addConstraint(Sketcher.Constraint("Vertical", 2))
sketch17.addConstraint(Sketcher.Constraint("Horizontal", 3))
sketch17.addConstraint(Sketcher.Constraint("Symmetric", 2, 2, 3, 2, -1, 1))
sketch17.addConstraint(Sketcher.Constraint("DistanceX", 1, 2, 1, 1, Q("34 mm")))
sketch17.addConstraint(Sketcher.Constraint("DistanceY", 0, 1, 0, 2, Q("7 mm")))
pad11 = doc.addObject("PartDesign::Pad", "Pad010")
body.addObject(pad11)
pad11.Profile = sketch17
pad11.Length = 2
doc.recompute()

fillet2 = doc.addObject("PartDesign::Fillet", "Fillet001")
body.addObject(fillet2)
fillet2.Base = (pad11, edges_at(pad11, [
    (0, 5, 7),
    (-10, 0, 7),
    (10, 0, 7),
    (5.5, -5, 7),
    (-5.5, -5, 7),
]))
fillet2.Radius = 1
doc.recompute()

fillet3 = doc.addObject("PartDesign::Fillet", "Fillet002")
body.addObject(fillet3)
fillet3.Base = (fillet2, edges_at(fillet2, [
    (10, 0, 41),
    (13, 0, 41),
    (-10, 0, 41),
    (-13, 0, 41),
]))
fillet3.Radius = 1
doc.recompute()

fillet4 = doc.addObject("PartDesign::Fillet", "Fillet003")
body.addObject(fillet4)
fillet4.Base = (fillet3, edges_at(fillet3, [
    (-13, 0, 66),
    (13, 0, 66),
    (-17, 8, 3.5),
    (-17, -8, 3.5),
    (17, 8, 3.5),
    (17, -8, 3.5),
]))
fillet4.Radius = 1

# Sketch on XZ plane
sketch18 = doc.addObject("Sketcher::SketchObject", "Sketch017")
body.addObject(sketch18)
sketch18.AttachmentSupport = (doc.XZ_Plane, [""])
sketch18.MapMode = "FlatFace"
sketch18.AttachmentOffset = App.Placement(V(0, 0, 8), App.Rotation())
sketch18.addGeometry(Part.LineSegment(V(-7.5, 7, 0), V(-7.5, 0, 0)), False)
sketch18.addGeometry(Part.LineSegment(V(-7.5, 0, 0), V(7.5, 0, 0)), False)
sketch18.addGeometry(Part.LineSegment(V(7.5, 0, 0), V(7.5, 7, 0)), False)
sketch18.addGeometry(Part.LineSegment(V(7.5, 7, 0), V(-7.5, 7, 0)), False)
sketch18.addConstraint(Sketcher.Constraint("Coincident", 0, 2, 1, 1))
sketch18.addConstraint(Sketcher.Constraint("Coincident", 1, 2, 2, 1))
sketch18.addConstraint(Sketcher.Constraint("Coincident", 2, 2, 3, 1))
sketch18.addConstraint(Sketcher.Constraint("Coincident", 3, 2, 0, 1))
sketch18.addConstraint(Sketcher.Constraint("Vertical", 0))
sketch18.addConstraint(Sketcher.Constraint("Horizontal", 1))
sketch18.addConstraint(Sketcher.Constraint("Vertical", 2))
sketch18.addConstraint(Sketcher.Constraint("Horizontal", 3))
sketch18.addConstraint(Sketcher.Constraint("Symmetric", 0, 2, 1, 2, -1, 1))
sketch18.addConstraint(Sketcher.Constraint("DistanceX", 1, 1, 1, 2, Q("15 mm")))
sketch18.addConstraint(Sketcher.Constraint("DistanceY", 0, 2, 0, 1, Q("7 mm")))
pad12 = doc.addObject("PartDesign::Pad", "Pad011")
body.addObject(pad12)
pad12.Profile = sketch18
pad12.Length = 15
doc.recompute()

fillet5 = doc.addObject("PartDesign::Fillet", "Fillet004")
body.addObject(fillet5)
fillet5.Base = (pad12, edges_at(pad12, [
    (-7.5, -23, 3.5),
    (7.5, -23, 3.5),
    (-7.5, -8, 3.5),
    (7.5, -8, 3.5),
]))
fillet5.Radius = 1

# Sketch on XY plane
sketch19 = doc.addObject("Sketcher::SketchObject", "Sketch018")
body.addObject(sketch19)
sketch19.AttachmentSupport = (doc.XY_Plane, [""])
sketch19.MapMode = "FlatFace"
sketch19.AttachmentOffset = App.Placement(V(0, 0, 7), App.Rotation())
sketch19.addGeometry(Part.Circle(V(0, -20, 0), V(0, 0, 1), 1.6), False)
sketch19.addConstraint(Sketcher.Constraint("PointOnObject", 0, 3, -2))
sketch19.addConstraint(Sketcher.Constraint("Diameter", 0, Q("3.2 mm")))
sketch19.addConstraint(Sketcher.Constraint("DistanceY", 0, 3, -1, 1, Q("20 mm")))
pocket7 = doc.addObject("PartDesign::Pocket", "Pocket006")
body.addObject(pocket7)
pocket7.Profile = sketch19
pocket7.Length = 10

doc.recompute()
